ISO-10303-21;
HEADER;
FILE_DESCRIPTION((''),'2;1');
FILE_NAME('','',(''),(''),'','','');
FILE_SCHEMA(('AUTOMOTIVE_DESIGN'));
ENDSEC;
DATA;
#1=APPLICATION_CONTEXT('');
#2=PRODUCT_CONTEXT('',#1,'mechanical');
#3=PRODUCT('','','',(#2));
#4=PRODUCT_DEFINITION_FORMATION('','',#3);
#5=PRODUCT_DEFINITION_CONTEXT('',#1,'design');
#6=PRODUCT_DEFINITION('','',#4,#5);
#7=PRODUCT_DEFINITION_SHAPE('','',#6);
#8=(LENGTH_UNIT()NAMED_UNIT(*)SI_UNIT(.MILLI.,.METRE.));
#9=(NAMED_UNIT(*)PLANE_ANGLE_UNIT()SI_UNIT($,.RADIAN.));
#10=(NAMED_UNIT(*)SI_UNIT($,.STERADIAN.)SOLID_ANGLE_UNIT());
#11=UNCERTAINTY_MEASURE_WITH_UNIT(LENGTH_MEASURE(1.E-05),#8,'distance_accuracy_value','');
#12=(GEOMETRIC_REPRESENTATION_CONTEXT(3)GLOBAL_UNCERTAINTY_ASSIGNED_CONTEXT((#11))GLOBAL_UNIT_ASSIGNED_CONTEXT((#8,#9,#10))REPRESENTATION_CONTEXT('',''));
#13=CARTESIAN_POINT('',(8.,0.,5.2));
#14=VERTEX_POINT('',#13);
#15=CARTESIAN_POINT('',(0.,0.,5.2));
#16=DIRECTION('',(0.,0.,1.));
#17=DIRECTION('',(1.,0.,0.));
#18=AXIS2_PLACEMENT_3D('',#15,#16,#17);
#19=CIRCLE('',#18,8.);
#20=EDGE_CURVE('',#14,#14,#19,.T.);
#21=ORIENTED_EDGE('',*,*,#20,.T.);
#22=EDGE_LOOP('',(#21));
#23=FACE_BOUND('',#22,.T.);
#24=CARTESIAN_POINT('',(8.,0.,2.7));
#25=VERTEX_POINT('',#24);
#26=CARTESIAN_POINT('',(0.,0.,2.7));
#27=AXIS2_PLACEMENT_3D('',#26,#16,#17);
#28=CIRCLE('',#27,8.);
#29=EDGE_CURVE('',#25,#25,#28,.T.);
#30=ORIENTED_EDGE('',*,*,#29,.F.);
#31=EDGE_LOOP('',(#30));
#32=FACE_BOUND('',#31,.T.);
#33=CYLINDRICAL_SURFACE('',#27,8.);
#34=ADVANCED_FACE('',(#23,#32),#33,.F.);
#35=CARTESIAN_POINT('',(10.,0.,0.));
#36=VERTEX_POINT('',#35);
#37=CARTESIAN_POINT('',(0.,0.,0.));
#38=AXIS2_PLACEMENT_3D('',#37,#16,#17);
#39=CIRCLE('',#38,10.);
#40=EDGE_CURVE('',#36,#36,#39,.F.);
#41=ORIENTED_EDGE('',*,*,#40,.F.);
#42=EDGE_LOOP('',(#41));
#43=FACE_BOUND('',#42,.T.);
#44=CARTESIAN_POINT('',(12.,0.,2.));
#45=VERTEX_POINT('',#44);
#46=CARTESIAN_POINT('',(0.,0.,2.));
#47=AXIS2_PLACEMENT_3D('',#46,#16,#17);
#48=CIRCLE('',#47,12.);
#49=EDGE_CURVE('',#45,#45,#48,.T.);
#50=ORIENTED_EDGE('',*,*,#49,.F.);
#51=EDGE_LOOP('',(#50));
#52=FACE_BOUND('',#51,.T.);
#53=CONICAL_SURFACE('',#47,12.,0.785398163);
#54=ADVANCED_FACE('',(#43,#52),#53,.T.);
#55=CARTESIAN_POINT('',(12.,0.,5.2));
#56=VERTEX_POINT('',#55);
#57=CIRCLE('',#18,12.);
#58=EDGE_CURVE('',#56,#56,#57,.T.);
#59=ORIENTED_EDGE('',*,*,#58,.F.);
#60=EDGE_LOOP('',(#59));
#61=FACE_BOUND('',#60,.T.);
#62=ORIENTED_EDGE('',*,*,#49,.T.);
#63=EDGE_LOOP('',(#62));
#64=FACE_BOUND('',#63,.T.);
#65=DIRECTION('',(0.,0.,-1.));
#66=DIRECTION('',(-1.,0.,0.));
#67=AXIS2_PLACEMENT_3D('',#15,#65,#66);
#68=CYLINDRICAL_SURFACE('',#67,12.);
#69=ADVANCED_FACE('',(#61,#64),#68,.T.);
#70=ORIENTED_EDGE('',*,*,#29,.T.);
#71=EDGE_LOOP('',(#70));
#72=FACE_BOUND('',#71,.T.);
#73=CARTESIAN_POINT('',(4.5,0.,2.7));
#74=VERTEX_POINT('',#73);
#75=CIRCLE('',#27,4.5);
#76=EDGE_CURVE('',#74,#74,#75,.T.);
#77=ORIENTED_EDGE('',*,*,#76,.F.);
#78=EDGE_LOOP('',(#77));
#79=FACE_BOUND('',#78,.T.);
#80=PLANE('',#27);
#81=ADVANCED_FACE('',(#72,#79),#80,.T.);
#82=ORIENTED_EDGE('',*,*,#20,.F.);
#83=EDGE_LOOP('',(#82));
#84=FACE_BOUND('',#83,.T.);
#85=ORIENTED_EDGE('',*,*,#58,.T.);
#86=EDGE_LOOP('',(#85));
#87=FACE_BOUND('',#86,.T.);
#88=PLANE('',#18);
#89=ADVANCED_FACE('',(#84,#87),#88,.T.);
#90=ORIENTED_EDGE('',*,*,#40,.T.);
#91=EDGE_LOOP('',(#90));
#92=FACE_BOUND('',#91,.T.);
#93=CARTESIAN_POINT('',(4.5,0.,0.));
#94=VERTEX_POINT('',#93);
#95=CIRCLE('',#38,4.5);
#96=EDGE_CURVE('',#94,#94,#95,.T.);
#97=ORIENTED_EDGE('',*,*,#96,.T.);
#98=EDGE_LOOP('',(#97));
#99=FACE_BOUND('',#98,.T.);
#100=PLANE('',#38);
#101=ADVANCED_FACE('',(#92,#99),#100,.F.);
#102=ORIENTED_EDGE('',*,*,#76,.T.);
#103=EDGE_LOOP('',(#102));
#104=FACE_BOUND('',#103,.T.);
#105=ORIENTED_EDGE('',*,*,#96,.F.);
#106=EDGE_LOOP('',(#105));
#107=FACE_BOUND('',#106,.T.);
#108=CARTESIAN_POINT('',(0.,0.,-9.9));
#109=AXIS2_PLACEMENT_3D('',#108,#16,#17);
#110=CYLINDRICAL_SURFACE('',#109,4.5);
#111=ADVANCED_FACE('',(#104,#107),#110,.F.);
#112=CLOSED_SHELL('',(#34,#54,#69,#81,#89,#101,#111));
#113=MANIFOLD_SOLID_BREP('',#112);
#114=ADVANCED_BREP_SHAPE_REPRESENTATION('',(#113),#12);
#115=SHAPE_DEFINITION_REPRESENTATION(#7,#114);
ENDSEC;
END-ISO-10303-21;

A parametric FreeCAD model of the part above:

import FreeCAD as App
import Part
import Sketcher


def edges_at(feature, points):
    """Names of the edges that pass closest to the given points."""
    edges = feature.Shape.Edges
    near = lambda p: min(range(len(edges)), key=lambda i: edges[i].distToShape(Part.Vertex(*p))[0])
    return sorted({f"Edge{near(p) + 1}" for p in points})

doc = App.newDocument("Part")
body = doc.addObject("PartDesign::Body", "Body")

sketch1 = body.newObject("Sketcher::SketchObject", "Sketch")
sketch1.AttachmentSupport = (doc.getObject("XY_Plane"), [""])
sketch1.MapMode = "FlatFace"
sketch1.addGeometry(Part.Circle(App.Vector(0, 0, 0), App.Vector(0, 0, 1), 12), False)
sketch1.addConstraint([
    Sketcher.Constraint("Coincident", 0, 3, -1, 1),
    Sketcher.Constraint("Diameter", 0, 24.0),
])
pad1 = body.newObject("PartDesign::Pad", "Pad")
pad1.Profile = sketch1
pad1.Length = 5.2

sketch2 = body.newObject("Sketcher::SketchObject", "Sketch001")
sketch2.AttachmentSupport = (doc.getObject("XY_Plane"), [""])
sketch2.MapMode = "FlatFace"
sketch2.AttachmentOffset = App.Placement(App.Vector(0, 0, 5.2), App.Rotation())
sketch2.addGeometry(Part.Circle(App.Vector(0, 0, 0), App.Vector(0, 0, 1), 8), False)
sketch2.addConstraint([
    Sketcher.Constraint("Coincident", 0, 3, -1, 1),
    Sketcher.Constraint("Diameter", 0, 16.0),
])
pocket1 = body.newObject("PartDesign::Pocket", "Pocket")
pocket1.Profile = sketch2
pocket1.Length = 2.5

sketch3 = body.newObject("Sketcher::SketchObject", "Sketch002")
sketch3.AttachmentSupport = (doc.getObject("XY_Plane"), [""])
sketch3.MapMode = "FlatFace"
sketch3.AttachmentOffset = App.Placement(App.Vector(0, 0, 2.7), App.Rotation())
sketch3.addGeometry(Part.Circle(App.Vector(0, 0, 0), App.Vector(0, 0, 1), 4.5), False)
sketch3.addConstraint([
    Sketcher.Constraint("Coincident", 0, 3, -1, 1),
    Sketcher.Constraint("Diameter", 0, 9.0),
])
pocket2 = body.newObject("PartDesign::Pocket", "Pocket001")
pocket2.Profile = sketch3
pocket2.Length = 12.6
doc.recompute()

chamfer = body.newObject("PartDesign::Chamfer", "Chamfer")
chamfer.Base = (pocket2, edges_at(pocket2, [(-12, 0, 0)]))
chamfer.Size = 2

doc.recompute()
